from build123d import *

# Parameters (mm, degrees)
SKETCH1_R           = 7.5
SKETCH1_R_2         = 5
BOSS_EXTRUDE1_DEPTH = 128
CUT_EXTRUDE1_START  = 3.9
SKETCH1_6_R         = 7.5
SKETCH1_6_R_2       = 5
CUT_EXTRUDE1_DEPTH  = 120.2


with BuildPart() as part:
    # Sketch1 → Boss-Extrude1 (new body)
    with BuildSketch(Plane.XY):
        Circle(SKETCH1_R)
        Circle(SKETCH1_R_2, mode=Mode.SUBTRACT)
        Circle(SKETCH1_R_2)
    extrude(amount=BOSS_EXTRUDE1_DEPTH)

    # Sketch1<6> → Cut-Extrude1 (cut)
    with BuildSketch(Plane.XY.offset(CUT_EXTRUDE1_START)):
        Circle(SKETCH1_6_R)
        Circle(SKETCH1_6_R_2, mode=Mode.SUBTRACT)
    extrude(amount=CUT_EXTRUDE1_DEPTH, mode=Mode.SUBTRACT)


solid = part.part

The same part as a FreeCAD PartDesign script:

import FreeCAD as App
import Part
import Sketcher
from FreeCAD import Vector

doc = App.newDocument("Part")
params = doc.addObject("Spreadsheet::Sheet", "Params")
for row, (alias, value) in enumerate([
    ("sketch1_diameter", "15 mm"),
    ("pad1_length", "128 mm"),
    ("sketch2_diameter", "15 mm"),
    ("sketch2_diameter2", "10 mm"),
    ("pocket1_length", "120.2 mm"),
], start=1):
    params.set(f"A{row}", alias)
    params.set(f"B{row}", "=" + value)
    params.setAlias(f"B{row}", alias)

body = doc.addObject("PartDesign::Body", "Body")

# Sketch on XY plane
sketch1 = body.newObject("Sketcher::SketchObject", "Sketch")
sketch1.AttachmentSupport = (doc.getObject("XY_Plane"), [""])
sketch1.MapMode = "FlatFace"
sketch1.addGeometry(Part.Circle(Vector(0, 0, 0), Vector(0, 0, 1), 7.5), False)
sketch1.addConstraint(Sketcher.Constraint("Coincident", 0, 3, -1, 1))
sketch1.addConstraint(Sketcher.Constraint("Diameter", 0, 15.0))
sketch1.setExpression("Constraints[1]", "Params.sketch1_diameter")
pad1 = body.newObject("PartDesign::Pad", "Pad")
pad1.Profile = sketch1
pad1.setExpression("Length", "Params.pad1_length")

# Sketch on XY plane
sketch2 = body.newObject("Sketcher::SketchObject", "Sketch001")
sketch2.AttachmentSupport = (doc.getObject("XY_Plane"), [""])
sketch2.MapMode = "FlatFace"
sketch2.AttachmentOffset = App.Placement(Vector(0, 0, 3.9), App.Rotation())
sketch2.addGeometry(Part.Circle(Vector(0, 0, 0), Vector(0, 0, 1), 7.5), False)
sketch2.addGeometry(Part.Circle(Vector(0, 0, 0), Vector(0, 0, 1), 5), False)
sketch2.addConstraint(Sketcher.Constraint("Coincident", 0, 3, -1, 1))
sketch2.addConstraint(Sketcher.Constraint("Coincident", 1, 3, -1, 1))
sketch2.addConstraint(Sketcher.Constraint("Diameter", 0, 15.0))
sketch2.addConstraint(Sketcher.Constraint("Diameter", 1, 10.0))
sketch2.setExpression("Constraints[2]", "Params.sketch2_diameter")
sketch2.setExpression("Constraints[3]", "Params.sketch2_diameter2")
pocket1 = body.newObject("PartDesign::Pocket", "Pocket")
pocket1.Profile = sketch2
pocket1.setExpression("Length", "Params.pocket1_length")
pocket1.Reversed = True

doc.recompute()
